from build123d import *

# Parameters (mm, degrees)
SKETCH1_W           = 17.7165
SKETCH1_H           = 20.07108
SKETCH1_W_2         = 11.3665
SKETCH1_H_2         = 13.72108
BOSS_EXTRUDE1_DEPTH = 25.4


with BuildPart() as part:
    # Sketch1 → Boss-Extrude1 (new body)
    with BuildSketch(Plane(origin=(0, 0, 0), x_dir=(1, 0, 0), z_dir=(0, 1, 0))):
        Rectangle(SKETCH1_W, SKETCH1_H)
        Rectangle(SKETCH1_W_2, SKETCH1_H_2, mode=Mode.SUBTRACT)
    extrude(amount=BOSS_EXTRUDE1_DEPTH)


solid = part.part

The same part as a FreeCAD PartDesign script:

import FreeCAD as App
import Part
import Sketcher
Q = App.Units.Quantity

doc = App.newDocument("Part")
params = doc.addObject("Spreadsheet::Sheet", "Params")
for row, (alias, value) in enumerate([
    ("pad1_length", "1 in"),
], start=1):
    params.set(f"A{row}", alias)
    params.set(f"B{row}", "=" + value)
    params.setAlias(f"B{row}", alias)

body = doc.addObject("PartDesign::Body", "Body")

sketch1 = doc.addObject("Sketcher::SketchObject", "Sketch")
body.addObject(sketch1)
sketch1.AttachmentSupport = (doc.XZ_Plane, [""])
sketch1.MapMode = "FlatFace"
sketch1.addGeometry([
    Part.LineSegment(App.Vector(-8.85825, -10.03554, 0), App.Vector(-8.85825, 10.03554, 0)),
    Part.LineSegment(App.Vector(-8.85825, 10.03554, 0), App.Vector(8.85825, 10.03554, 0)),
    Part.LineSegment(App.Vector(8.85825, 10.03554, 0), App.Vector(8.85825, -10.03554, 0)),
    Part.LineSegment(App.Vector(8.85825, -10.03554, 0), App.Vector(-8.85825, -10.03554, 0)),
    Part.LineSegment(App.Vector(5.68325, 6.86054, 0), App.Vector(-5.68325, 6.86054, 0)),
    Part.LineSegment(App.Vector(-5.68325, 6.86054, 0), App.Vector(-5.68325, -6.86054, 0)),
    Part.LineSegment(App.Vector(-5.68325, -6.86054, 0), App.Vector(5.68325, -6.86054, 0)),
    Part.LineSegment(App.Vector(5.68325, -6.86054, 0), App.Vector(5.68325, 6.86054, 0)),
], False)
sketch1.addConstraint([
    Sketcher.Constraint("Coincident", 0, 2, 1, 1),
    Sketcher.Constraint("Coincident", 1, 2, 2, 1),
    Sketcher.Constraint("Coincident", 2, 2, 3, 1),
    Sketcher.Constraint("Coincident", 3, 2, 0, 1),
    Sketcher.Constraint("Coincident", 4, 2, 5, 1),
    Sketcher.Constraint("Coincident", 5, 2, 6, 1),
    Sketcher.Constraint("Coincident", 6, 2, 7, 1),
    Sketcher.Constraint("Coincident", 7, 2, 4, 1),
    Sketcher.Constraint("Vertical", 0),
    Sketcher.Constraint("Horizontal", 1),
    Sketcher.Constraint("Vertical", 2),
    Sketcher.Constraint("Horizontal", 3),
    Sketcher.Constraint("Horizontal", 4),
    Sketcher.Constraint("Vertical", 5),
    Sketcher.Constraint("Horizontal", 6),
    Sketcher.Constraint("Vertical", 7),
    Sketcher.Constraint("Symmetric", 0, 2, 2, 2, -1, 1),
    Sketcher.Constraint("Symmetric", 4, 2, 6, 2, -1, 1),
    Sketcher.Constraint("DistanceX", 1, 1, 1, 2, Q("0.6975 in")),
    Sketcher.Constraint("DistanceX", 4, 2, 4, 1, Q("0.4475 in")),
    Sketcher.Constraint("DistanceY", 0, 1, 0, 2, Q("0.7902 in")),
    Sketcher.Constraint("DistanceY", 5, 2, 5, 1, Q("0.5402 in")),
])
pad1 = doc.addObject("PartDesign::Pad", "Pad")
body.addObject(pad1)
pad1.Profile = sketch1
pad1.setExpression("Length", "Params.pad1_length")
pad1.Reversed = True

doc.recompute()
